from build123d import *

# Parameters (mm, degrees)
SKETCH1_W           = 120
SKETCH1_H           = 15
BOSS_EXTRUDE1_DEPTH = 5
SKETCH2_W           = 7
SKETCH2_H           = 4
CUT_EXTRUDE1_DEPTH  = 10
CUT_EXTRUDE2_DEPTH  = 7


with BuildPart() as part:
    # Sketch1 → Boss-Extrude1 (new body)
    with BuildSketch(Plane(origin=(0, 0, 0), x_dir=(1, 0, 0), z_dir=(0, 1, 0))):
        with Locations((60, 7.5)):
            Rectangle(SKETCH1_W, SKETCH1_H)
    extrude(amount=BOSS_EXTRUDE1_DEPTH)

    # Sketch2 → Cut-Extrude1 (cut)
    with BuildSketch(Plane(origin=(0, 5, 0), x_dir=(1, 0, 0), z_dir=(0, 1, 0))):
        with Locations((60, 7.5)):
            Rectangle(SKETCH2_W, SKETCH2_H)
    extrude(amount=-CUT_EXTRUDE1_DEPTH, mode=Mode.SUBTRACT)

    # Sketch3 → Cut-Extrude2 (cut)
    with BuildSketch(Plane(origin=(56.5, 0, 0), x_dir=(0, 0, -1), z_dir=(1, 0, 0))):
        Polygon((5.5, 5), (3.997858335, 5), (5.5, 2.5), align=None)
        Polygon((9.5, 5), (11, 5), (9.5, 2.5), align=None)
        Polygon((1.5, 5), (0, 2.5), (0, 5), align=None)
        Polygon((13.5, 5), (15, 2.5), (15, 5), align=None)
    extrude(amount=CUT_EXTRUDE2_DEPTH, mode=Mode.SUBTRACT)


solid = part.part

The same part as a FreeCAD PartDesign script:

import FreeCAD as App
import Part
import Sketcher
from FreeCAD import Vector
Q = App.Units.Quantity

doc = App.newDocument("Part")
params = doc.addObject("Spreadsheet::Sheet", "Params")
for row, (alias, value) in enumerate([
    ("sketch1_width", "120 mm"),
    ("sketch1_height", "15 mm"),
    ("pad1_length", "5 mm"),
    ("sketch2_width", "7 mm"),
    ("sketch2_height", "4 mm"),
    ("pocket1_length", "10 mm"),
    ("sketch3_width", "2.5 mm"),
    ("sketch3_height", "1.5 mm"),
    ("pocket2_length", "7 mm"),
], start=1):
    params.set(f"A{row}", alias)
    params.set(f"B{row}", "=" + value)
    params.setAlias(f"B{row}", alias)

body = doc.addObject("PartDesign::Body", "Body")

sketch1 = body.newObject("Sketcher::SketchObject", "Sketch")
sketch1.AttachmentSupport = (doc.getObject("XZ_Plane"), [""])
sketch1.MapMode = "FlatFace"
sketch1.addGeometry([
    Part.LineSegment(Vector(0, -15, 0), Vector(0, 0, 0)),
    Part.LineSegment(Vector(0, 0, 0), Vector(120, 0, 0)),
    Part.LineSegment(Vector(120, 0, 0), Vector(120, -15, 0)),
    Part.LineSegment(Vector(120, -15, 0), Vector(0, -15, 0)),
], False)
sketch1.addConstraint([
    Sketcher.Constraint("Coincident", 0, 2, 1, 1),
    Sketcher.Constraint("Coincident", 1, 2, 2, 1),
    Sketcher.Constraint("Coincident", 2, 2, 3, 1),
    Sketcher.Constraint("Coincident", 3, 2, 0, 1),
    Sketcher.Constraint("Vertical", 0),
    Sketcher.Constraint("Horizontal", 1),
    Sketcher.Constraint("Vertical", 2),
    Sketcher.Constraint("Horizontal", 3),
    Sketcher.Constraint("Coincident", 0, 2, -1, 1),
    Sketcher.Constraint("DistanceX", 1, 1, 1, 2, Q("120 mm")),
    Sketcher.Constraint("DistanceY", 0, 1, 0, 2, Q("15 mm")),
])
sketch1.setExpression("Constraints[9]", "Params.sketch1_width")
sketch1.setExpression("Constraints[10]", "Params.sketch1_height")
pad1 = body.newObject("PartDesign::Pad", "Pad")
pad1.Profile = sketch1
pad1.setExpression("Length", "Params.pad1_length")
pad1.Reversed = True

sketch2 = body.newObject("Sketcher::SketchObject", "Sketch001")
sketch2.AttachmentSupport = (doc.getObject("XZ_Plane"), [""])
sketch2.MapMode = "FlatFace"
sketch2.AttachmentOffset = App.Placement(Vector(0, 0, -5), App.Rotation())
sketch2.addGeometry([
    Part.LineSegment(Vector(56.5, -9.5, 0), Vector(56.5, -5.5, 0)),
    Part.LineSegment(Vector(56.5, -5.5, 0), Vector(63.5, -5.5, 0)),
    Part.LineSegment(Vector(63.5, -5.5, 0), Vector(63.5, -9.5, 0)),
    Part.LineSegment(Vector(63.5, -9.5, 0), Vector(56.5, -9.5, 0)),
], False)
sketch2.addConstraint([
    Sketcher.Constraint("Coincident", 0, 2, 1, 1),
    Sketcher.Constraint("Coincident", 1, 2, 2, 1),
    Sketcher.Constraint("Coincident", 2, 2, 3, 1),
    Sketcher.Constraint("Coincident", 3, 2, 0, 1),
    Sketcher.Constraint("Vertical", 0),
    Sketcher.Constraint("Horizontal", 1),
    Sketcher.Constraint("Vertical", 2),
    Sketcher.Constraint("Horizontal", 3),
    Sketcher.Constraint("DistanceX", 1, 1, 1, 2, Q("7 mm")),
    Sketcher.Constraint("DistanceY", 0, 1, 0, 2, Q("4 mm")),
    Sketcher.Constraint("DistanceX", -1, 1, 0, 2, Q("56.5 mm")),
    Sketcher.Constraint("DistanceY", 0, 2, -1, 1, Q("5.5 mm")),
])
sketch2.setExpression("Constraints[8]", "Params.sketch2_width")
sketch2.setExpression("Constraints[9]", "Params.sketch2_height")
pocket1 = body.newObject("PartDesign::Pocket", "Pocket")
pocket1.Profile = sketch2
pocket1.setExpression("Length", "Params.pocket1_length")
pocket1.Reversed = True

sketch3 = body.newObject("Sketcher::SketchObject", "Sketch002")
sketch3.AttachmentSupport = (doc.getObject("YZ_Plane"), [""])
sketch3.MapMode = "FlatFace"
sketch3.AttachmentOffset = App.Placement(Vector(0, 0, 56.5), App.Rotation())
sketch3.addGeometry([
    Part.LineSegment(Vector(5, -5.5, 0), Vector(5, -4, 0)),
    Part.LineSegment(Vector(5, -4, 0), Vector(2.5, -5.5, 0)),
    Part.LineSegment(Vector(2.5, -5.5, 0), Vector(5, -5.5, 0)),
    Part.LineSegment(Vector(5, -11, 0), Vector(5, -9.5, 0)),
    Part.LineSegment(Vector(5, -9.5, 0), Vector(2.5, -9.5, 0)),
    Part.LineSegment(Vector(2.5, -9.5, 0), Vector(5, -11, 0)),
    Part.LineSegment(Vector(2.5, 0, 0), Vector(5, -1.5, 0)),
    Part.LineSegment(Vector(5, -1.5, 0), Vector(5, 0, 0)),
    Part.LineSegment(Vector(5, 0, 0), Vector(2.5, 0, 0)),
    Part.LineSegment(Vector(5, -13.5, 0), Vector(2.5, -15, 0)),
    Part.LineSegment(Vector(2.5, -15, 0), Vector(5, -15, 0)),
    Part.LineSegment(Vector(5, -15, 0), Vector(5, -13.5, 0)),
], False)
sketch3.addConstraint([
    Sketcher.Constraint("Coincident", 0, 2, 1, 1),
    Sketcher.Constraint("Coincident", 1, 2, 2, 1),
    Sketcher.Constraint("Coincident", 2, 2, 0, 1),
    Sketcher.Constraint("Coincident", 3, 2, 4, 1),
    Sketcher.Constraint("Coincident", 4, 2, 5, 1),
    Sketcher.Constraint("Coincident", 5, 2, 3, 1),
    Sketcher.Constraint("Coincident", 6, 2, 7, 1),
    Sketcher.Constraint("Coincident", 7, 2, 8, 1),
    Sketcher.Constraint("Coincident", 8, 2, 6, 1),
    Sketcher.Constraint("Coincident", 9, 2, 10, 1),
    Sketcher.Constraint("Coincident", 10, 2, 11, 1),
    Sketcher.Constraint("Coincident", 11, 2, 9, 1),
    Sketcher.Constraint("Vertical", 0),
    Sketcher.Constraint("Horizontal", 2),
    Sketcher.Constraint("Vertical", 3),
    Sketcher.Constraint("Horizontal", 4),
    Sketcher.Constraint("Vertical", 7),
    Sketcher.Constraint("Horizontal", 8),
    Sketcher.Constraint("Horizontal", 10),
    Sketcher.Constraint("Vertical", 11),
    Sketcher.Constraint("PointOnObject", 7, 2, -1),
    Sketcher.Constraint("Parallel", 5, 6),
    Sketcher.Constraint("Vertical", 2, 2, 3, 2),
    Sketcher.Constraint("Vertical", 1, 2, 4, 2),
    Sketcher.Constraint("Vertical", 5, 2, 6, 2),
    Sketcher.Constraint("Vertical", 4, 2, 8, 2),
    Sketcher.Constraint("Vertical", 8, 2, 9, 2),
    Sketcher.Constraint("Vertical", 7, 2, 10, 2),
    Sketcher.Constraint("Equal", 7, 11),
    Sketcher.Constraint("DistanceX", 2, 1, 2, 2, Q("2.5 mm")),
    Sketcher.Constraint("DistanceY", 3, 1, 3, 2, Q("1.5 mm")),
    Sketcher.Constraint("DistanceX", -1, 1, 0, 2, Q("5 mm")),
    Sketcher.Constraint("DistanceY", 5, 2, -1, 1, Q("11 mm")),
    Sketcher.Constraint("DistanceY", 9, 2, -1, 1, Q("15 mm")),
    Sketcher.Constraint("DistanceY", 3, 2, 2, 2, Q("4 mm")),
    Sketcher.Constraint("DistanceY", 0, 1, 0, 2, Q("1.502142 mm")),
])
sketch3.setExpression("Constraints[29]", "Params.sketch3_width")
sketch3.setExpression("Constraints[30]", "Params.sketch3_height")
pocket2 = body.newObject("PartDesign::Pocket", "Pocket001")
pocket2.Profile = sketch3
pocket2.setExpression("Length", "Params.pocket2_length")
pocket2.Reversed = True

doc.recompute()
